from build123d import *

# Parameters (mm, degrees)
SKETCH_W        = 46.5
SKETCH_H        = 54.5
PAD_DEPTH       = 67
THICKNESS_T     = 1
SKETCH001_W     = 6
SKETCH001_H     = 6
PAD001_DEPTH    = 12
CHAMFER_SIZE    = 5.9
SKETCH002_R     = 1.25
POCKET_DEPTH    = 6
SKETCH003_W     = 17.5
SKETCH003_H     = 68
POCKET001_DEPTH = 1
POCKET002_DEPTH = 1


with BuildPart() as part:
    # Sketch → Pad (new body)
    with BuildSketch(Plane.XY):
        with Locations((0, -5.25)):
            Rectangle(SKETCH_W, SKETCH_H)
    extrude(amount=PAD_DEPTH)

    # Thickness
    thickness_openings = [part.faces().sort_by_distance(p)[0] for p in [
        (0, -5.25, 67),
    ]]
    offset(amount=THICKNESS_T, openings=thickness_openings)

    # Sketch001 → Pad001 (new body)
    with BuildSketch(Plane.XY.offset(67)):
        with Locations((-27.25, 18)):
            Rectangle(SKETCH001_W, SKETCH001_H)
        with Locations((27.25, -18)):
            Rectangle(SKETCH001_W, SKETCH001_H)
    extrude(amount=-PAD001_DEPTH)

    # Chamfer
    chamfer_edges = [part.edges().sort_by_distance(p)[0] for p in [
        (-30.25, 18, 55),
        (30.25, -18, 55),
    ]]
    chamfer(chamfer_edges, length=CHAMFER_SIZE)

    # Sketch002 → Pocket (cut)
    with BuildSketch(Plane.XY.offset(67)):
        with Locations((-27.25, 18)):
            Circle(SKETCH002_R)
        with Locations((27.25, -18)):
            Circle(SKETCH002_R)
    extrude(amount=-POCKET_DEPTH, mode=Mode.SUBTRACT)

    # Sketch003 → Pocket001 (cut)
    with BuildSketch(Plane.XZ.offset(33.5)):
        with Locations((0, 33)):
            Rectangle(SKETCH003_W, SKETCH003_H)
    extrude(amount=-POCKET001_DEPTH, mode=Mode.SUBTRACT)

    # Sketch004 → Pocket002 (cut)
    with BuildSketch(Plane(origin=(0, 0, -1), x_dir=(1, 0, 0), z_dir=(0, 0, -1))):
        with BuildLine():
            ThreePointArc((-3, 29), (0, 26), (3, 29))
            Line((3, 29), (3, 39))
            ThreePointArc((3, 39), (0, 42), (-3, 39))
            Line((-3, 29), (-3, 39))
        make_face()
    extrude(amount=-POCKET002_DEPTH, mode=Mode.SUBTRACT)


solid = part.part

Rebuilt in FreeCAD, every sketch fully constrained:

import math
import FreeCAD as App
import Part
import Sketcher

V = App.Vector
Q = App.Units.Quantity


def edges_at(feature, points):
    """Names of the edges that pass closest to the given points."""
    edges = feature.Shape.Edges
    near = lambda p: min(range(len(edges)), key=lambda i: edges[i].distToShape(Part.Vertex(*p))[0])
    return sorted({f"Edge{near(p) + 1}" for p in points})


def faces_at(feature, points):
    """Names of the faces that lie closest to the given points."""
    faces = feature.Shape.Faces
    near = lambda p: min(range(len(faces)), key=lambda i: faces[i].distToShape(Part.Vertex(*p))[0])
    return sorted({f"Face{near(p) + 1}" for p in points})


def add_polygon(sketch, points):
    """Adds a closed chain of lines whose ends are joined by coincident constraints."""
    first, n = sketch.GeometryCount, len(points)
    for a, b in zip(points, points[1:] + points[:1]):
        sketch.addGeometry(Part.LineSegment(App.Vector(*a, 0), App.Vector(*b, 0)), False)
    for i in range(n):
        sketch.addConstraint(Sketcher.Constraint("Coincident", first + i, 2, first + (i + 1) % n, 1))

doc = App.newDocument("Part")
params = doc.addObject("Spreadsheet::Sheet", "Params")
for row, (alias, value) in enumerate([
    ("sketch1_width", "46.5 mm"),
    ("sketch1_height", "54.5 mm"),
    ("pad1_length", "67 mm"),
    ("thickness_wall", "1 mm"),
    ("sketch2_width", "6 mm"),
    ("pad2_length", "12 mm"),
    ("chamfer_size", "5.9 mm"),
    ("sketch3_diameter", "2.5 mm"),
    ("pocket1_length", "6 mm"),
    ("sketch4_height", "68 mm"),
    ("sketch4_width", "17.5 mm"),
    ("pocket2_length", "1 mm"),
    ("sketch5_radius", "3 mm"),
    ("sketch5_height", "10 mm"),
    ("pocket3_length", "1 mm"),
], start=1):
    params.set(f"A{row}", alias)
    params.set(f"B{row}", "=" + value)
    params.setAlias(f"B{row}", alias)

body = doc.addObject("PartDesign::Body", "Body")

# Sketch on XY plane
sketch1 = body.newObject("Sketcher::SketchObject", "Sketch")
sketch1.AttachmentSupport = (doc.getObject("XY_Plane"), [""])
sketch1.MapMode = "FlatFace"
add_polygon(sketch1, [(-23.25, 22), (-23.25, -32.5), (23.25, -32.5), (23.25, 22)])  # lines 0-3
sketch1.addConstraint(Sketcher.Constraint("Vertical", 0))
sketch1.addConstraint(Sketcher.Constraint("Horizontal", 1))
sketch1.addConstraint(Sketcher.Constraint("Vertical", 2))
sketch1.addConstraint(Sketcher.Constraint("Horizontal", 3))
sketch1.addConstraint(Sketcher.Constraint("DistanceX", 1, 1, 1, 2, Q("46.5 mm")))
sketch1.addConstraint(Sketcher.Constraint("DistanceY", 0, 2, 0, 1, Q("54.5 mm")))
sketch1.addConstraint(Sketcher.Constraint("DistanceY", -1, 1, 2, 2, Q("22 mm")))
sketch1.addConstraint(Sketcher.Constraint("DistanceX", 0, 2, -1, 1, Q("23.25 mm")))
sketch1.setExpression("Constraints[8]", "Params.sketch1_width")
sketch1.setExpression("Constraints[9]", "Params.sketch1_height")
pad1 = body.newObject("PartDesign::Pad", "Pad")
pad1.Profile = sketch1
pad1.setExpression("Length", "Params.pad1_length")
doc.recompute()

thickness = body.newObject("PartDesign::Thickness", "Thickness")
thickness.Base = (pad1, faces_at(pad1, [(0, -5.25, 67)]))
thickness.setExpression("Value", "Params.thickness_wall")
thickness.Reversed = False
thickness.Join = "Arc"

# Sketch on XY plane
sketch2 = body.newObject("Sketcher::SketchObject", "Sketch001")
sketch2.AttachmentSupport = (doc.getObject("XY_Plane"), [""])
sketch2.MapMode = "FlatFace"
sketch2.AttachmentOffset = App.Placement(V(0, 0, 67), App.Rotation())
add_polygon(sketch2, [(-30.25, 21), (-30.25, 15), (-24.25, 15), (-24.25, 21)])  # lines 0-3
add_polygon(sketch2, [(24.25, -15), (24.25, -21), (30.25, -21), (30.25, -15)])  # lines 4-7
sketch2.addConstraint(Sketcher.Constraint("Vertical", 0))
sketch2.addConstraint(Sketcher.Constraint("Horizontal", 1))
sketch2.addConstraint(Sketcher.Constraint("Vertical", 2))
sketch2.addConstraint(Sketcher.Constraint("Horizontal", 3))
sketch2.addConstraint(Sketcher.Constraint("Vertical", 4))
sketch2.addConstraint(Sketcher.Constraint("Horizontal", 5))
sketch2.addConstraint(Sketcher.Constraint("Vertical", 6))
sketch2.addConstraint(Sketcher.Constraint("Horizontal", 7))
sketch2.addConstraint(Sketcher.Constraint("Symmetric", 2, 2, 4, 2, -1, 1))
sketch2.addConstraint(Sketcher.Constraint("Symmetric", 0, 2, 6, 2, -1, 1))
sketch2.addConstraint(Sketcher.Constraint("Equal", 7, 0))
sketch2.addConstraint(Sketcher.Constraint("DistanceX", 1, 1, 1, 2, Q("6 mm")))
sketch2.addConstraint(Sketcher.Constraint("DistanceY", -1, 1, 0, 2, Q("15 mm")))
sketch2.addConstraint(Sketcher.Constraint("DistanceX", 1, 2, 4, 2, Q("48.5 mm")))
sketch2.setExpression("Constraints[19]", "Params.sketch2_width")
pad2 = body.newObject("PartDesign::Pad", "Pad001")
pad2.Profile = sketch2
pad2.setExpression("Length", "Params.pad2_length")
pad2.Reversed = True
doc.recompute()

chamfer = body.newObject("PartDesign::Chamfer", "Chamfer")
chamfer.Base = (pad2, edges_at(pad2, [(-30.25, 18, 55), (30.25, -18, 55)]))
chamfer.setExpression("Size", "Params.chamfer_size")

# Sketch on XY plane
sketch3 = body.newObject("Sketcher::SketchObject", "Sketch002")
sketch3.AttachmentSupport = (doc.getObject("XY_Plane"), [""])
sketch3.MapMode = "FlatFace"
sketch3.AttachmentOffset = App.Placement(V(0, 0, 67), App.Rotation())
sketch3.addGeometry(Part.Circle(V(-27.25, 18, 0), V(0, 0, 1), 1.25), False)
sketch3.addGeometry(Part.Circle(V(27.25, -18, 0), V(0, 0, 1), 1.25), False)
sketch3.addConstraint(Sketcher.Constraint("Equal", 0, 1))
sketch3.addConstraint(Sketcher.Constraint("Symmetric", 0, 3, 1, 3, -1, 1))
sketch3.addConstraint(Sketcher.Constraint("Diameter", 0, Q("2.5 mm")))
sketch3.addConstraint(Sketcher.Constraint("DistanceY", -1, 1, 0, 3, Q("18 mm")))
sketch3.addConstraint(Sketcher.Constraint("DistanceX", 0, 3, 1, 3, Q("54.5 mm")))
sketch3.setExpression("Constraints[2]", "Params.sketch3_diameter")
pocket1 = body.newObject("PartDesign::Pocket", "Pocket")
pocket1.Profile = sketch3
pocket1.setExpression("Length", "Params.pocket1_length")

# Sketch on XZ plane
sketch4 = body.newObject("Sketcher::SketchObject", "Sketch003")
sketch4.AttachmentSupport = (doc.getObject("XZ_Plane"), [""])
sketch4.MapMode = "FlatFace"
sketch4.AttachmentOffset = App.Placement(V(0, 0, 33.5), App.Rotation())
add_polygon(sketch4, [(-8.75, 67), (-8.75, -1), (8.75, -1), (8.75, 67)])  # lines 0-3
sketch4.addConstraint(Sketcher.Constraint("Vertical", 0))
sketch4.addConstraint(Sketcher.Constraint("Horizontal", 1))
sketch4.addConstraint(Sketcher.Constraint("Vertical", 2))
sketch4.addConstraint(Sketcher.Constraint("Horizontal", 3))
sketch4.addConstraint(Sketcher.Constraint("DistanceY", 0, 2, 0, 1, Q("68 mm")))
sketch4.addConstraint(Sketcher.Constraint("DistanceX", 1, 1, 1, 2, Q("17.5 mm")))
sketch4.addConstraint(Sketcher.Constraint("DistanceY", 0, 2, -1, 1, Q("1 mm")))
sketch4.addConstraint(Sketcher.Constraint("DistanceX", 0, 2, -1, 1, Q("8.75 mm")))
sketch4.setExpression("Constraints[8]", "Params.sketch4_height")
sketch4.setExpression("Constraints[9]", "Params.sketch4_width")
pocket2 = body.newObject("PartDesign::Pocket", "Pocket001")
pocket2.Profile = sketch4
pocket2.setExpression("Length", "Params.pocket2_length")

# Sketch on XY plane
sketch5 = body.newObject("Sketcher::SketchObject", "Sketch004")
sketch5.AttachmentSupport = (doc.getObject("XY_Plane"), [""])
sketch5.MapMode = "FlatFace"
sketch5.AttachmentOffset = App.Placement(V(0, 0, -1), App.Rotation())
sketch5.addGeometry(Part.ArcOfCircle(Part.Circle(V(0, -29, 0), V(0, 0, 1), 3), math.radians(0), math.radians(180)), False)
sketch5.addGeometry(Part.LineSegment(V(3, -29, 0), V(3, -39, 0)), False)
sketch5.addGeometry(Part.ArcOfCircle(Part.Circle(V(0, -39, 0), V(0, 0, 1), 3), math.radians(180), math.radians(360)), False)
sketch5.addGeometry(Part.LineSegment(V(-3, -39, 0), V(-3, -29, 0)), False)
sketch5.addConstraint(Sketcher.Constraint("Tangent", 0, 1, 1, 1))
sketch5.addConstraint(Sketcher.Constraint("Tangent", 1, 2, 2, 2))
sketch5.addConstraint(Sketcher.Constraint("Tangent", 2, 1, 3, 1))
sketch5.addConstraint(Sketcher.Constraint("Tangent", 3, 2, 0, 2))
sketch5.addConstraint(Sketcher.Constraint("Vertical", 1))
sketch5.addConstraint(Sketcher.Constraint("Vertical", 3))
sketch5.addConstraint(Sketcher.Constraint("PointOnObject", 0, 3, -2))
sketch5.addConstraint(Sketcher.Constraint("Radius", 0, Q("3 mm")))
sketch5.addConstraint(Sketcher.Constraint("DistanceY", 1, 2, 1, 1, Q("10 mm")))
sketch5.addConstraint(Sketcher.Constraint("DistanceY", 0, 3, -1, 1, Q("29 mm")))
sketch5.setExpression("Constraints[7]", "Params.sketch5_radius")
sketch5.setExpression("Constraints[8]", "Params.sketch5_height")
pocket3 = body.newObject("PartDesign::Pocket", "Pocket002")
pocket3.Profile = sketch5
pocket3.setExpression("Length", "Params.pocket3_length")
pocket3.Reversed = True

doc.recompute()
